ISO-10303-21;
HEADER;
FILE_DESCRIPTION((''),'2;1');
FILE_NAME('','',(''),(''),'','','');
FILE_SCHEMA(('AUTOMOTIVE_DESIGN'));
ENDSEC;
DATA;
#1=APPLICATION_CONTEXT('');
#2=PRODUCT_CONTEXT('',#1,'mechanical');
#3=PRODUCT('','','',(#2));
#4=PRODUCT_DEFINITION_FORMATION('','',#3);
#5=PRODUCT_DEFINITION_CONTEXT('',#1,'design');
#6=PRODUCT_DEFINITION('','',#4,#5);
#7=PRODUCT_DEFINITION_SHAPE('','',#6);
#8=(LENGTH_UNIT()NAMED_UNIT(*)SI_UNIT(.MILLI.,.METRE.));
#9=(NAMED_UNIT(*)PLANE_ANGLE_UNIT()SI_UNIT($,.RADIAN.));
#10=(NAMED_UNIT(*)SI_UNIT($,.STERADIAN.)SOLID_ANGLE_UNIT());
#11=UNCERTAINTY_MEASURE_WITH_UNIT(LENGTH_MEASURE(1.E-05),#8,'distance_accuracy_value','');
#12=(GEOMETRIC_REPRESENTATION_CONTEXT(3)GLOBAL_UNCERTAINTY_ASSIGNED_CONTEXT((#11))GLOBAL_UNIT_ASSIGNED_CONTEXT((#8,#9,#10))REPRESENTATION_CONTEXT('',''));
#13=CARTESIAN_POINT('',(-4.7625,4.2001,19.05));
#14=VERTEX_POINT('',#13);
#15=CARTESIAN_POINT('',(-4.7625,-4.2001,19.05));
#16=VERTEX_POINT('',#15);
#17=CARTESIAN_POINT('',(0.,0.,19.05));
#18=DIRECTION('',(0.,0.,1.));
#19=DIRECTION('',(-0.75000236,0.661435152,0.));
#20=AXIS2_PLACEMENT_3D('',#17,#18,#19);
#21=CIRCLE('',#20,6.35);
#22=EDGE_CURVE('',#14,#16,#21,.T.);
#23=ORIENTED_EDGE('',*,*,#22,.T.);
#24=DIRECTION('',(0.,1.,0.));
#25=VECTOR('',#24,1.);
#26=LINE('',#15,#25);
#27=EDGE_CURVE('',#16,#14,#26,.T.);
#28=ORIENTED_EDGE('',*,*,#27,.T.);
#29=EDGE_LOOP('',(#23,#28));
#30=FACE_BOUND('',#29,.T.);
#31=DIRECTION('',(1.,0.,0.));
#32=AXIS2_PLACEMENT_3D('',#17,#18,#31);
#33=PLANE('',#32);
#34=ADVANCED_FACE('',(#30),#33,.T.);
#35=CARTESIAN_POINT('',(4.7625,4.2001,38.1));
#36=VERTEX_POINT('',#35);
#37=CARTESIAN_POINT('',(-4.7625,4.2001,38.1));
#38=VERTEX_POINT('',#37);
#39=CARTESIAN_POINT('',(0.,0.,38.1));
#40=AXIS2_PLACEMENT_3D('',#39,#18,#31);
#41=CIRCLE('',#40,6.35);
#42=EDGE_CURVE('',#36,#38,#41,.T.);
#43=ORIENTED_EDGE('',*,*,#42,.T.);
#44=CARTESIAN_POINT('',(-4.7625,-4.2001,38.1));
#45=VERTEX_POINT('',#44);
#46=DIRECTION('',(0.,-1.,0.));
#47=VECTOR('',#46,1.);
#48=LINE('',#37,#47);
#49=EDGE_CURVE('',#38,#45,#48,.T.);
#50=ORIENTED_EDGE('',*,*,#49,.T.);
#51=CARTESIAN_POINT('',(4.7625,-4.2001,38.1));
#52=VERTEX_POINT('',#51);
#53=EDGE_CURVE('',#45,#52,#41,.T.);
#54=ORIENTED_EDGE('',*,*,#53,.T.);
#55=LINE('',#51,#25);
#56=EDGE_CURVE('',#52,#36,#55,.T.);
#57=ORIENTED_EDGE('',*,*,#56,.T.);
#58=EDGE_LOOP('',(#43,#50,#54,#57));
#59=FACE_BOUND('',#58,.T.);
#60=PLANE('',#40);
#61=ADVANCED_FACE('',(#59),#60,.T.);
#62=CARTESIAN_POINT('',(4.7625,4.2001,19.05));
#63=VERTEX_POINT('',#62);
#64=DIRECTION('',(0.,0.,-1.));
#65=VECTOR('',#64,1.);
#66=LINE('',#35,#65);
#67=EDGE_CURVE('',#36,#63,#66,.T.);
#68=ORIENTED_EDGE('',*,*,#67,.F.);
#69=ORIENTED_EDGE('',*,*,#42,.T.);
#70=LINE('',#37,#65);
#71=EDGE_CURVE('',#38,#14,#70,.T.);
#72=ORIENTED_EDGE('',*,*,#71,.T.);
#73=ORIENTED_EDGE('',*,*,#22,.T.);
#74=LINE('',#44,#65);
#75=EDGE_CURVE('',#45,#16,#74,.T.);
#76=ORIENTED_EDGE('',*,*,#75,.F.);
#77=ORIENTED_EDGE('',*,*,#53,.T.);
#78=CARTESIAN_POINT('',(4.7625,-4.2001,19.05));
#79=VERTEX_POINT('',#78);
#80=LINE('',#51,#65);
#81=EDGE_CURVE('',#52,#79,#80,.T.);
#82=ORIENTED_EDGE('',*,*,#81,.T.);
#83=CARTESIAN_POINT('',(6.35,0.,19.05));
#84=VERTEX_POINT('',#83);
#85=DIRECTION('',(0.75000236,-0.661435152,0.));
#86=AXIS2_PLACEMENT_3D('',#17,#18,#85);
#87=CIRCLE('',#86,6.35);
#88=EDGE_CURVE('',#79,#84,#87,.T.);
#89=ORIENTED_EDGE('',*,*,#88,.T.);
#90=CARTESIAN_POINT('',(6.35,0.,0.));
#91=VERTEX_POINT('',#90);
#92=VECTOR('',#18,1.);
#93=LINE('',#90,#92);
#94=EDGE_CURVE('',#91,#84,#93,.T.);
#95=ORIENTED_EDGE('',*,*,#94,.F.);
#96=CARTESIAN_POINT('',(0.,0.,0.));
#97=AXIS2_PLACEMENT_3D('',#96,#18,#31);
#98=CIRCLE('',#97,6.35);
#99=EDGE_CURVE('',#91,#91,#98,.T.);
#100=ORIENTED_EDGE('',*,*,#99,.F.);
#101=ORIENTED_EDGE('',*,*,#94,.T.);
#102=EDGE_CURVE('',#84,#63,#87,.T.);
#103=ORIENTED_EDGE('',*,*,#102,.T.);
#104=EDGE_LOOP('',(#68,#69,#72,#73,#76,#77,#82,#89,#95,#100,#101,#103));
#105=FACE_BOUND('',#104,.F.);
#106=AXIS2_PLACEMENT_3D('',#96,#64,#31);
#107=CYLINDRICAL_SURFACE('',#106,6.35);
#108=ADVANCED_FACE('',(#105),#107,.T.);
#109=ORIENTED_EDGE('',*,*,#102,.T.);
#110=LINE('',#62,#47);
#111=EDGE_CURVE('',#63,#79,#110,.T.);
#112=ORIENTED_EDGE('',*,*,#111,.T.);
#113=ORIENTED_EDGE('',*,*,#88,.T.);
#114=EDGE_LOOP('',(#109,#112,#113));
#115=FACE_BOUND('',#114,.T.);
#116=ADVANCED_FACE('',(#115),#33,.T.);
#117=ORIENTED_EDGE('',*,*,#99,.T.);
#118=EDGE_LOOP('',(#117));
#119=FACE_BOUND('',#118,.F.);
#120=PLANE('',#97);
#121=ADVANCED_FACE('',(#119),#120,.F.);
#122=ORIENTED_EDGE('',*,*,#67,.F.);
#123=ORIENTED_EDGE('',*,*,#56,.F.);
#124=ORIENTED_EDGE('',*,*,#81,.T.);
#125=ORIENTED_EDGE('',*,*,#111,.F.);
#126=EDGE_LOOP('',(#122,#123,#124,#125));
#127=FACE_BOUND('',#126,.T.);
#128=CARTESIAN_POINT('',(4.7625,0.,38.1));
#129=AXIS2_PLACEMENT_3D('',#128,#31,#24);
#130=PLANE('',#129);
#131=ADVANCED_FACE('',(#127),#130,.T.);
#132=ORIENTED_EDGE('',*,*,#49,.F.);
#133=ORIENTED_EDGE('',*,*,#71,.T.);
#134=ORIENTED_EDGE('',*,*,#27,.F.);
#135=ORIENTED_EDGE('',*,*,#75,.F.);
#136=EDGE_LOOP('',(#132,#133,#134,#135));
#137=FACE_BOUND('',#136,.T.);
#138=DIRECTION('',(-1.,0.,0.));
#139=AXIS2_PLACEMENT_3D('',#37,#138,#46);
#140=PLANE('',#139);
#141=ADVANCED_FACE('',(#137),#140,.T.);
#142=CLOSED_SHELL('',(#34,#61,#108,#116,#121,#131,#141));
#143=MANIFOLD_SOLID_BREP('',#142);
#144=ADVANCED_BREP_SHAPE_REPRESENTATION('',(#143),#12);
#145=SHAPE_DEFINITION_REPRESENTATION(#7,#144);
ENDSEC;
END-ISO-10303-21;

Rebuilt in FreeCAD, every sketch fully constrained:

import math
import FreeCAD as App
import Part
import Sketcher
Q = App.Units.Quantity

doc = App.newDocument("Part")
params = doc.addObject("Spreadsheet::Sheet", "Params")
for row, (alias, value) in enumerate([
    ("sketch1_diameter", "0.5 in"),
    ("pad1_length", "1.5 in"),
    ("sketch2_radius", "0.25 in"),
    ("pocket1_length", "0.75 in"),
], start=1):
    params.set(f"A{row}", alias)
    params.set(f"B{row}", "=" + value)
    params.setAlias(f"B{row}", alias)

body = doc.addObject("PartDesign::Body", "Body")

sketch1 = body.newObject("Sketcher::SketchObject", "Sketch")
sketch1.AttachmentSupport = (doc.getObject("XY_Plane"), [""])
sketch1.MapMode = "FlatFace"
sketch1.addGeometry(Part.Circle(App.Vector(0, 0, 0), App.Vector(0, 0, 1), 6.35), False)
sketch1.addConstraint(Sketcher.Constraint("Coincident", 0, 3, -1, 1))
sketch1.addConstraint(Sketcher.Constraint("Diameter", 0, Q("0.5 in")))
sketch1.setExpression("Constraints[1]", "Params.sketch1_diameter")
pad1 = body.newObject("PartDesign::Pad", "Pad")
pad1.Profile = sketch1
pad1.setExpression("Length", "Params.pad1_length")

sketch2 = body.newObject("Sketcher::SketchObject", "Sketch001")
sketch2.AttachmentSupport = (doc.getObject("XY_Plane"), [""])
sketch2.MapMode = "FlatFace"
sketch2.AttachmentOffset = App.Placement(App.Vector(0, 0, 1.5 * 25.4), App.Rotation())
sketch2.addGeometry(Part.LineSegment(App.Vector(4.7625, 4.2001, 0), App.Vector(4.7625, -4.2001, 0)), False)
sketch2.addGeometry(Part.ArcOfCircle(Part.Circle(App.Vector(0, 0, 0), App.Vector(0, 0, 1), 6.35), math.radians(-41.409418), math.radians(41.409418)), False)
sketch2.addGeometry(Part.ArcOfCircle(Part.Circle(App.Vector(0, 0, 0), App.Vector(0, 0, 1), 6.35), math.radians(138.590582), math.radians(221.409418)), False)
sketch2.addGeometry(Part.LineSegment(App.Vector(-4.7625, 4.2001, 0), App.Vector(-4.7625, -4.2001, 0)), False)
sketch2.addConstraint(Sketcher.Constraint("Coincident", 0, 1, 1, 2))
sketch2.addConstraint(Sketcher.Constraint("Coincident", 1, 1, 0, 2))
sketch2.addConstraint(Sketcher.Constraint("Coincident", 2, 1, 3, 1))
sketch2.addConstraint(Sketcher.Constraint("Coincident", 3, 2, 2, 2))
sketch2.addConstraint(Sketcher.Constraint("Vertical", 0))
sketch2.addConstraint(Sketcher.Constraint("Vertical", 3))
sketch2.addConstraint(Sketcher.Constraint("Coincident", 1, 3, -1, 1))
sketch2.addConstraint(Sketcher.Constraint("Coincident", 2, 3, -1, 1))
sketch2.addConstraint(Sketcher.Constraint("Equal", 1, 2))
sketch2.addConstraint(Sketcher.Constraint("Horizontal", 0, 1, 2, 1))
sketch2.addConstraint(Sketcher.Constraint("Radius", 1, Q("0.25 in")))
sketch2.addConstraint(Sketcher.Constraint("DistanceX", -1, 1, 0, 1, Q("0.1875 in")))
sketch2.setExpression("Constraints[10]", "Params.sketch2_radius")
pocket1 = body.newObject("PartDesign::Pocket", "Pocket")
pocket1.Profile = sketch2
pocket1.setExpression("Length", "Params.pocket1_length")

doc.recompute()
